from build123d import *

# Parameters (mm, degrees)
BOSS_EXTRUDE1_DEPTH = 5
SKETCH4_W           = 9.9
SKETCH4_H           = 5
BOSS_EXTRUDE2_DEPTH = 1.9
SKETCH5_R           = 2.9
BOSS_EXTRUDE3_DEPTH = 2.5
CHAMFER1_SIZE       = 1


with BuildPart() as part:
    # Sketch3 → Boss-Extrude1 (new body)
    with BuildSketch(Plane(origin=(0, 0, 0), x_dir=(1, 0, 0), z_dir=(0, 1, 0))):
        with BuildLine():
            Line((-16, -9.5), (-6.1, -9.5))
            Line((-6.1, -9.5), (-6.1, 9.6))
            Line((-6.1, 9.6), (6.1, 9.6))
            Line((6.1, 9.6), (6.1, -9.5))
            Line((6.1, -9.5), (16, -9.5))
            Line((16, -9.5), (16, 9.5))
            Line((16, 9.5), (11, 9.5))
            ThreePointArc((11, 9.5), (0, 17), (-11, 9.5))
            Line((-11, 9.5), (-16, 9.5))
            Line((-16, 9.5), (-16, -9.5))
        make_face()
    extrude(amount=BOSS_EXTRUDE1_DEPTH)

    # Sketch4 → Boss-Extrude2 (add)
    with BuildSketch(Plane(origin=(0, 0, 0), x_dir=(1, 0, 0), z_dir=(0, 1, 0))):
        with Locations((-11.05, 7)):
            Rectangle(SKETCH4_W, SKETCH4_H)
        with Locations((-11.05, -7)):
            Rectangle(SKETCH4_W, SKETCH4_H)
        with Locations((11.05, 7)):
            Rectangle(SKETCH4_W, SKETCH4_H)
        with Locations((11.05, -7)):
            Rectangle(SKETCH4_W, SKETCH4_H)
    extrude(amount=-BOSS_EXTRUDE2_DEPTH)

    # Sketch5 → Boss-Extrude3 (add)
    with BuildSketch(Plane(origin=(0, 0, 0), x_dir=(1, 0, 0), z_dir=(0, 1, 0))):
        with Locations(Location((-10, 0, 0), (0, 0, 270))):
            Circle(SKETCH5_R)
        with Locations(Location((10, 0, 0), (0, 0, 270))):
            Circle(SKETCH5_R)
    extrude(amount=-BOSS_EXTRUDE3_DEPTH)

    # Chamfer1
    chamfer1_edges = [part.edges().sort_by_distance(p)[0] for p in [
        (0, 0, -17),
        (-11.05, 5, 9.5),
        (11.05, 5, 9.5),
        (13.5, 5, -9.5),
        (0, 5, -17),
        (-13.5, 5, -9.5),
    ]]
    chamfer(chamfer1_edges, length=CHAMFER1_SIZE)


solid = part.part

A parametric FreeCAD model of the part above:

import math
import FreeCAD as App
import Part
import Sketcher

V = App.Vector
Q = App.Units.Quantity


def edges_at(feature, points):
    """Names of the edges that pass closest to the given points."""
    edges = feature.Shape.Edges
    near = lambda p: min(range(len(edges)), key=lambda i: edges[i].distToShape(Part.Vertex(*p))[0])
    return sorted({f"Edge{near(p) + 1}" for p in points})

doc = App.newDocument("Part")
body = doc.addObject("PartDesign::Body", "Body")

# Sketch on XZ plane
sketch1 = body.newObject("Sketcher::SketchObject", "Sketch")
sketch1.AttachmentSupport = (doc.getObject("XZ_Plane"), [""])
sketch1.MapMode = "FlatFace"
sketch1.addGeometry(Part.LineSegment(V(-16, 9.5, 0), V(-6.1, 9.5, 0)), False)
sketch1.addGeometry(Part.LineSegment(V(-6.1, 9.5, 0), V(-6.1, -9.6, 0)), False)
sketch1.addGeometry(Part.LineSegment(V(-6.1, -9.6, 0), V(6.1, -9.6, 0)), False)
sketch1.addGeometry(Part.LineSegment(V(6.1, -9.6, 0), V(6.1, 9.5, 0)), False)
sketch1.addGeometry(Part.LineSegment(V(6.1, 9.5, 0), V(16, 9.5, 0)), False)
sketch1.addGeometry(Part.LineSegment(V(16, 9.5, 0), V(16, -9.5, 0)), False)
sketch1.addGeometry(Part.LineSegment(V(16, -9.5, 0), V(11, -9.5, 0)), False)
sketch1.addGeometry(Part.ArcOfCircle(Part.Circle(V(0, -5.183333, 0), V(0, 0, 1), 11.816667), math.radians(-158.573754), math.radians(-21.426246)), False)
sketch1.addGeometry(Part.LineSegment(V(-11, -9.5, 0), V(-16, -9.5, 0)), False)
sketch1.addGeometry(Part.LineSegment(V(-16, -9.5, 0), V(-16, 9.5, 0)), False)
sketch1.addConstraint(Sketcher.Constraint("Coincident", 0, 2, 1, 1))
sketch1.addConstraint(Sketcher.Constraint("Coincident", 1, 2, 2, 1))
sketch1.addConstraint(Sketcher.Constraint("Coincident", 2, 2, 3, 1))
sketch1.addConstraint(Sketcher.Constraint("Coincident", 3, 2, 4, 1))
sketch1.addConstraint(Sketcher.Constraint("Coincident", 4, 2, 5, 1))
sketch1.addConstraint(Sketcher.Constraint("Coincident", 5, 2, 6, 1))
sketch1.addConstraint(Sketcher.Constraint("Coincident", 6, 2, 7, 2))
sketch1.addConstraint(Sketcher.Constraint("Coincident", 7, 1, 8, 1))
sketch1.addConstraint(Sketcher.Constraint("Coincident", 8, 2, 9, 1))
sketch1.addConstraint(Sketcher.Constraint("Coincident", 9, 2, 0, 1))
sketch1.addConstraint(Sketcher.Constraint("Horizontal", 0))
sketch1.addConstraint(Sketcher.Constraint("Vertical", 1))
sketch1.addConstraint(Sketcher.Constraint("Horizontal", 2))
sketch1.addConstraint(Sketcher.Constraint("Vertical", 3))
sketch1.addConstraint(Sketcher.Constraint("Horizontal", 4))
sketch1.addConstraint(Sketcher.Constraint("Vertical", 5))
sketch1.addConstraint(Sketcher.Constraint("Horizontal", 6))
sketch1.addConstraint(Sketcher.Constraint("Horizontal", 8))
sketch1.addConstraint(Sketcher.Constraint("Vertical", 9))
sketch1.addConstraint(Sketcher.Constraint("Symmetric", 4, 2, 8, 2, -1, 1))
sketch1.addConstraint(Sketcher.Constraint("Symmetric", 0, 2, 3, 2, -2))
sketch1.addConstraint(Sketcher.Constraint("Symmetric", 6, 2, 7, 1, -2))
sketch1.addConstraint(Sketcher.Constraint("DistanceX", 6, 2, 6, 1, Q("5 mm")))
sketch1.addConstraint(Sketcher.Constraint("DistanceY", 5, 2, 5, 1, Q("19 mm")))
sketch1.addConstraint(Sketcher.Constraint("DistanceX", 0, 1, 0, 2, Q("9.9 mm")))
sketch1.addConstraint(Sketcher.Constraint("DistanceX", 2, 1, 2, 2, Q("12.2 mm")))
sketch1.addConstraint(Sketcher.Constraint("DistanceY", 1, 2, 1, 1, Q("19.1 mm")))
sketch1.addConstraint(Sketcher.Constraint("Radius", 7, Q("11.816667 mm")))
pad1 = body.newObject("PartDesign::Pad", "Pad")
pad1.Profile = sketch1
pad1.Length = 5
pad1.Reversed = True

# Sketch on XZ plane
sketch2 = body.newObject("Sketcher::SketchObject", "Sketch001")
sketch2.AttachmentSupport = (doc.getObject("XZ_Plane"), [""])
sketch2.MapMode = "FlatFace"
sketch2.addGeometry(Part.LineSegment(V(-16, -9.5, 0), V(-16, -4.5, 0)), False)
sketch2.addGeometry(Part.LineSegment(V(-16, -4.5, 0), V(-6.1, -4.5, 0)), False)
sketch2.addGeometry(Part.LineSegment(V(-6.1, -4.5, 0), V(-6.1, -9.5, 0)), False)
sketch2.addGeometry(Part.LineSegment(V(-6.1, -9.5, 0), V(-16, -9.5, 0)), False)
sketch2.addGeometry(Part.LineSegment(V(-16, 4.5, 0), V(-16, 9.5, 0)), False)
sketch2.addGeometry(Part.LineSegment(V(-16, 9.5, 0), V(-6.1, 9.5, 0)), False)
sketch2.addGeometry(Part.LineSegment(V(-6.1, 9.5, 0), V(-6.1, 4.5, 0)), False)
sketch2.addGeometry(Part.LineSegment(V(-6.1, 4.5, 0), V(-16, 4.5, 0)), False)
sketch2.addGeometry(Part.LineSegment(V(6.1, -9.5, 0), V(6.1, -4.5, 0)), False)
sketch2.addGeometry(Part.LineSegment(V(6.1, -4.5, 0), V(16, -4.5, 0)), False)
sketch2.addGeometry(Part.LineSegment(V(16, -4.5, 0), V(16, -9.5, 0)), False)
sketch2.addGeometry(Part.LineSegment(V(16, -9.5, 0), V(6.1, -9.5, 0)), False)
sketch2.addGeometry(Part.LineSegment(V(6.1, 4.5, 0), V(6.1, 9.5, 0)), False)
sketch2.addGeometry(Part.LineSegment(V(6.1, 9.5, 0), V(16, 9.5, 0)), False)
sketch2.addGeometry(Part.LineSegment(V(16, 9.5, 0), V(16, 4.5, 0)), False)
sketch2.addGeometry(Part.LineSegment(V(16, 4.5, 0), V(6.1, 4.5, 0)), False)
sketch2.addConstraint(Sketcher.Constraint("Coincident", 0, 2, 1, 1))
sketch2.addConstraint(Sketcher.Constraint("Coincident", 1, 2, 2, 1))
sketch2.addConstraint(Sketcher.Constraint("Coincident", 2, 2, 3, 1))
sketch2.addConstraint(Sketcher.Constraint("Coincident", 3, 2, 0, 1))
sketch2.addConstraint(Sketcher.Constraint("Coincident", 4, 2, 5, 1))
sketch2.addConstraint(Sketcher.Constraint("Coincident", 5, 2, 6, 1))
sketch2.addConstraint(Sketcher.Constraint("Coincident", 6, 2, 7, 1))
sketch2.addConstraint(Sketcher.Constraint("Coincident", 7, 2, 4, 1))
sketch2.addConstraint(Sketcher.Constraint("Coincident", 8, 2, 9, 1))
sketch2.addConstraint(Sketcher.Constraint("Coincident", 9, 2, 10, 1))
sketch2.addConstraint(Sketcher.Constraint("Coincident", 10, 2, 11, 1))
sketch2.addConstraint(Sketcher.Constraint("Coincident", 11, 2, 8, 1))
sketch2.addConstraint(Sketcher.Constraint("Coincident", 12, 2, 13, 1))
sketch2.addConstraint(Sketcher.Constraint("Coincident", 13, 2, 14, 1))
sketch2.addConstraint(Sketcher.Constraint("Coincident", 14, 2, 15, 1))
sketch2.addConstraint(Sketcher.Constraint("Coincident", 15, 2, 12, 1))
sketch2.addConstraint(Sketcher.Constraint("Vertical", 0))
sketch2.addConstraint(Sketcher.Constraint("Horizontal", 1))
sketch2.addConstraint(Sketcher.Constraint("Vertical", 2))
sketch2.addConstraint(Sketcher.Constraint("Horizontal", 3))
sketch2.addConstraint(Sketcher.Constraint("Vertical", 4))
sketch2.addConstraint(Sketcher.Constraint("Horizontal", 5))
sketch2.addConstraint(Sketcher.Constraint("Vertical", 6))
sketch2.addConstraint(Sketcher.Constraint("Horizontal", 7))
sketch2.addConstraint(Sketcher.Constraint("Vertical", 8))
sketch2.addConstraint(Sketcher.Constraint("Horizontal", 9))
sketch2.addConstraint(Sketcher.Constraint("Vertical", 10))
sketch2.addConstraint(Sketcher.Constraint("Horizontal", 11))
sketch2.addConstraint(Sketcher.Constraint("Vertical", 12))
sketch2.addConstraint(Sketcher.Constraint("Horizontal", 13))
sketch2.addConstraint(Sketcher.Constraint("Vertical", 14))
sketch2.addConstraint(Sketcher.Constraint("Horizontal", 15))
sketch2.addConstraint(Sketcher.Constraint("Symmetric", 6, 2, 8, 2, -1, 1))
sketch2.addConstraint(Sketcher.Constraint("Symmetric", 4, 2, 10, 2, -1, 1))
sketch2.addConstraint(Sketcher.Constraint("Symmetric", 2, 2, 12, 2, -1, 1))
sketch2.addConstraint(Sketcher.Constraint("Symmetric", 0, 2, 14, 2, -1, 1))
sketch2.addConstraint(Sketcher.Constraint("Symmetric", 1, 2, 8, 2, -2))
sketch2.addConstraint(Sketcher.Constraint("Symmetric", 3, 2, 10, 2, -2))
sketch2.addConstraint(Sketcher.Constraint("DistanceY", 0, 1, 0, 2, Q("5 mm")))
sketch2.addConstraint(Sketcher.Constraint("DistanceX", 1, 1, 1, 2, Q("9.9 mm")))
sketch2.addConstraint(Sketcher.Constraint("DistanceX", 0, 2, -1, 1, Q("16 mm")))
sketch2.addConstraint(Sketcher.Constraint("DistanceY", 0, 2, 4, 2, Q("14 mm")))
pad2 = body.newObject("PartDesign::Pad", "Pad001")
pad2.Profile = sketch2
pad2.Length = 1.9

# Sketch on XZ plane
sketch3 = body.newObject("Sketcher::SketchObject", "Sketch002")
sketch3.AttachmentSupport = (doc.getObject("XZ_Plane"), [""])
sketch3.MapMode = "FlatFace"
sketch3.addGeometry(Part.Circle(V(-10, 0, 0), V(0, 0, 1), 2.9), False)
sketch3.addGeometry(Part.Circle(V(10, 0, 0), V(0, 0, 1), 2.9), False)
sketch3.addConstraint(Sketcher.Constraint("Equal", 0, 1))
sketch3.addConstraint(Sketcher.Constraint("Symmetric", 0, 3, 1, 3, -1, 1))
sketch3.addConstraint(Sketcher.Constraint("PointOnObject", 0, 3, -1))
sketch3.addConstraint(Sketcher.Constraint("Diameter", 0, Q("5.8 mm")))
sketch3.addConstraint(Sketcher.Constraint("DistanceX", 0, 3, -1, 1, Q("10 mm")))
pad3 = body.newObject("PartDesign::Pad", "Pad002")
pad3.Profile = sketch3
pad3.Length = 2.5
doc.recompute()

chamfer = body.newObject("PartDesign::Chamfer", "Chamfer")
chamfer.Base = (pad3, edges_at(pad3, [
    (0, 0, -17),
    (-11.05, 5, 9.5),
    (11.05, 5, 9.5),
    (13.5, 5, -9.5),
    (0, 5, -17),
    (-13.5, 5, -9.5),
]))
chamfer.Size = 1

doc.recompute()
